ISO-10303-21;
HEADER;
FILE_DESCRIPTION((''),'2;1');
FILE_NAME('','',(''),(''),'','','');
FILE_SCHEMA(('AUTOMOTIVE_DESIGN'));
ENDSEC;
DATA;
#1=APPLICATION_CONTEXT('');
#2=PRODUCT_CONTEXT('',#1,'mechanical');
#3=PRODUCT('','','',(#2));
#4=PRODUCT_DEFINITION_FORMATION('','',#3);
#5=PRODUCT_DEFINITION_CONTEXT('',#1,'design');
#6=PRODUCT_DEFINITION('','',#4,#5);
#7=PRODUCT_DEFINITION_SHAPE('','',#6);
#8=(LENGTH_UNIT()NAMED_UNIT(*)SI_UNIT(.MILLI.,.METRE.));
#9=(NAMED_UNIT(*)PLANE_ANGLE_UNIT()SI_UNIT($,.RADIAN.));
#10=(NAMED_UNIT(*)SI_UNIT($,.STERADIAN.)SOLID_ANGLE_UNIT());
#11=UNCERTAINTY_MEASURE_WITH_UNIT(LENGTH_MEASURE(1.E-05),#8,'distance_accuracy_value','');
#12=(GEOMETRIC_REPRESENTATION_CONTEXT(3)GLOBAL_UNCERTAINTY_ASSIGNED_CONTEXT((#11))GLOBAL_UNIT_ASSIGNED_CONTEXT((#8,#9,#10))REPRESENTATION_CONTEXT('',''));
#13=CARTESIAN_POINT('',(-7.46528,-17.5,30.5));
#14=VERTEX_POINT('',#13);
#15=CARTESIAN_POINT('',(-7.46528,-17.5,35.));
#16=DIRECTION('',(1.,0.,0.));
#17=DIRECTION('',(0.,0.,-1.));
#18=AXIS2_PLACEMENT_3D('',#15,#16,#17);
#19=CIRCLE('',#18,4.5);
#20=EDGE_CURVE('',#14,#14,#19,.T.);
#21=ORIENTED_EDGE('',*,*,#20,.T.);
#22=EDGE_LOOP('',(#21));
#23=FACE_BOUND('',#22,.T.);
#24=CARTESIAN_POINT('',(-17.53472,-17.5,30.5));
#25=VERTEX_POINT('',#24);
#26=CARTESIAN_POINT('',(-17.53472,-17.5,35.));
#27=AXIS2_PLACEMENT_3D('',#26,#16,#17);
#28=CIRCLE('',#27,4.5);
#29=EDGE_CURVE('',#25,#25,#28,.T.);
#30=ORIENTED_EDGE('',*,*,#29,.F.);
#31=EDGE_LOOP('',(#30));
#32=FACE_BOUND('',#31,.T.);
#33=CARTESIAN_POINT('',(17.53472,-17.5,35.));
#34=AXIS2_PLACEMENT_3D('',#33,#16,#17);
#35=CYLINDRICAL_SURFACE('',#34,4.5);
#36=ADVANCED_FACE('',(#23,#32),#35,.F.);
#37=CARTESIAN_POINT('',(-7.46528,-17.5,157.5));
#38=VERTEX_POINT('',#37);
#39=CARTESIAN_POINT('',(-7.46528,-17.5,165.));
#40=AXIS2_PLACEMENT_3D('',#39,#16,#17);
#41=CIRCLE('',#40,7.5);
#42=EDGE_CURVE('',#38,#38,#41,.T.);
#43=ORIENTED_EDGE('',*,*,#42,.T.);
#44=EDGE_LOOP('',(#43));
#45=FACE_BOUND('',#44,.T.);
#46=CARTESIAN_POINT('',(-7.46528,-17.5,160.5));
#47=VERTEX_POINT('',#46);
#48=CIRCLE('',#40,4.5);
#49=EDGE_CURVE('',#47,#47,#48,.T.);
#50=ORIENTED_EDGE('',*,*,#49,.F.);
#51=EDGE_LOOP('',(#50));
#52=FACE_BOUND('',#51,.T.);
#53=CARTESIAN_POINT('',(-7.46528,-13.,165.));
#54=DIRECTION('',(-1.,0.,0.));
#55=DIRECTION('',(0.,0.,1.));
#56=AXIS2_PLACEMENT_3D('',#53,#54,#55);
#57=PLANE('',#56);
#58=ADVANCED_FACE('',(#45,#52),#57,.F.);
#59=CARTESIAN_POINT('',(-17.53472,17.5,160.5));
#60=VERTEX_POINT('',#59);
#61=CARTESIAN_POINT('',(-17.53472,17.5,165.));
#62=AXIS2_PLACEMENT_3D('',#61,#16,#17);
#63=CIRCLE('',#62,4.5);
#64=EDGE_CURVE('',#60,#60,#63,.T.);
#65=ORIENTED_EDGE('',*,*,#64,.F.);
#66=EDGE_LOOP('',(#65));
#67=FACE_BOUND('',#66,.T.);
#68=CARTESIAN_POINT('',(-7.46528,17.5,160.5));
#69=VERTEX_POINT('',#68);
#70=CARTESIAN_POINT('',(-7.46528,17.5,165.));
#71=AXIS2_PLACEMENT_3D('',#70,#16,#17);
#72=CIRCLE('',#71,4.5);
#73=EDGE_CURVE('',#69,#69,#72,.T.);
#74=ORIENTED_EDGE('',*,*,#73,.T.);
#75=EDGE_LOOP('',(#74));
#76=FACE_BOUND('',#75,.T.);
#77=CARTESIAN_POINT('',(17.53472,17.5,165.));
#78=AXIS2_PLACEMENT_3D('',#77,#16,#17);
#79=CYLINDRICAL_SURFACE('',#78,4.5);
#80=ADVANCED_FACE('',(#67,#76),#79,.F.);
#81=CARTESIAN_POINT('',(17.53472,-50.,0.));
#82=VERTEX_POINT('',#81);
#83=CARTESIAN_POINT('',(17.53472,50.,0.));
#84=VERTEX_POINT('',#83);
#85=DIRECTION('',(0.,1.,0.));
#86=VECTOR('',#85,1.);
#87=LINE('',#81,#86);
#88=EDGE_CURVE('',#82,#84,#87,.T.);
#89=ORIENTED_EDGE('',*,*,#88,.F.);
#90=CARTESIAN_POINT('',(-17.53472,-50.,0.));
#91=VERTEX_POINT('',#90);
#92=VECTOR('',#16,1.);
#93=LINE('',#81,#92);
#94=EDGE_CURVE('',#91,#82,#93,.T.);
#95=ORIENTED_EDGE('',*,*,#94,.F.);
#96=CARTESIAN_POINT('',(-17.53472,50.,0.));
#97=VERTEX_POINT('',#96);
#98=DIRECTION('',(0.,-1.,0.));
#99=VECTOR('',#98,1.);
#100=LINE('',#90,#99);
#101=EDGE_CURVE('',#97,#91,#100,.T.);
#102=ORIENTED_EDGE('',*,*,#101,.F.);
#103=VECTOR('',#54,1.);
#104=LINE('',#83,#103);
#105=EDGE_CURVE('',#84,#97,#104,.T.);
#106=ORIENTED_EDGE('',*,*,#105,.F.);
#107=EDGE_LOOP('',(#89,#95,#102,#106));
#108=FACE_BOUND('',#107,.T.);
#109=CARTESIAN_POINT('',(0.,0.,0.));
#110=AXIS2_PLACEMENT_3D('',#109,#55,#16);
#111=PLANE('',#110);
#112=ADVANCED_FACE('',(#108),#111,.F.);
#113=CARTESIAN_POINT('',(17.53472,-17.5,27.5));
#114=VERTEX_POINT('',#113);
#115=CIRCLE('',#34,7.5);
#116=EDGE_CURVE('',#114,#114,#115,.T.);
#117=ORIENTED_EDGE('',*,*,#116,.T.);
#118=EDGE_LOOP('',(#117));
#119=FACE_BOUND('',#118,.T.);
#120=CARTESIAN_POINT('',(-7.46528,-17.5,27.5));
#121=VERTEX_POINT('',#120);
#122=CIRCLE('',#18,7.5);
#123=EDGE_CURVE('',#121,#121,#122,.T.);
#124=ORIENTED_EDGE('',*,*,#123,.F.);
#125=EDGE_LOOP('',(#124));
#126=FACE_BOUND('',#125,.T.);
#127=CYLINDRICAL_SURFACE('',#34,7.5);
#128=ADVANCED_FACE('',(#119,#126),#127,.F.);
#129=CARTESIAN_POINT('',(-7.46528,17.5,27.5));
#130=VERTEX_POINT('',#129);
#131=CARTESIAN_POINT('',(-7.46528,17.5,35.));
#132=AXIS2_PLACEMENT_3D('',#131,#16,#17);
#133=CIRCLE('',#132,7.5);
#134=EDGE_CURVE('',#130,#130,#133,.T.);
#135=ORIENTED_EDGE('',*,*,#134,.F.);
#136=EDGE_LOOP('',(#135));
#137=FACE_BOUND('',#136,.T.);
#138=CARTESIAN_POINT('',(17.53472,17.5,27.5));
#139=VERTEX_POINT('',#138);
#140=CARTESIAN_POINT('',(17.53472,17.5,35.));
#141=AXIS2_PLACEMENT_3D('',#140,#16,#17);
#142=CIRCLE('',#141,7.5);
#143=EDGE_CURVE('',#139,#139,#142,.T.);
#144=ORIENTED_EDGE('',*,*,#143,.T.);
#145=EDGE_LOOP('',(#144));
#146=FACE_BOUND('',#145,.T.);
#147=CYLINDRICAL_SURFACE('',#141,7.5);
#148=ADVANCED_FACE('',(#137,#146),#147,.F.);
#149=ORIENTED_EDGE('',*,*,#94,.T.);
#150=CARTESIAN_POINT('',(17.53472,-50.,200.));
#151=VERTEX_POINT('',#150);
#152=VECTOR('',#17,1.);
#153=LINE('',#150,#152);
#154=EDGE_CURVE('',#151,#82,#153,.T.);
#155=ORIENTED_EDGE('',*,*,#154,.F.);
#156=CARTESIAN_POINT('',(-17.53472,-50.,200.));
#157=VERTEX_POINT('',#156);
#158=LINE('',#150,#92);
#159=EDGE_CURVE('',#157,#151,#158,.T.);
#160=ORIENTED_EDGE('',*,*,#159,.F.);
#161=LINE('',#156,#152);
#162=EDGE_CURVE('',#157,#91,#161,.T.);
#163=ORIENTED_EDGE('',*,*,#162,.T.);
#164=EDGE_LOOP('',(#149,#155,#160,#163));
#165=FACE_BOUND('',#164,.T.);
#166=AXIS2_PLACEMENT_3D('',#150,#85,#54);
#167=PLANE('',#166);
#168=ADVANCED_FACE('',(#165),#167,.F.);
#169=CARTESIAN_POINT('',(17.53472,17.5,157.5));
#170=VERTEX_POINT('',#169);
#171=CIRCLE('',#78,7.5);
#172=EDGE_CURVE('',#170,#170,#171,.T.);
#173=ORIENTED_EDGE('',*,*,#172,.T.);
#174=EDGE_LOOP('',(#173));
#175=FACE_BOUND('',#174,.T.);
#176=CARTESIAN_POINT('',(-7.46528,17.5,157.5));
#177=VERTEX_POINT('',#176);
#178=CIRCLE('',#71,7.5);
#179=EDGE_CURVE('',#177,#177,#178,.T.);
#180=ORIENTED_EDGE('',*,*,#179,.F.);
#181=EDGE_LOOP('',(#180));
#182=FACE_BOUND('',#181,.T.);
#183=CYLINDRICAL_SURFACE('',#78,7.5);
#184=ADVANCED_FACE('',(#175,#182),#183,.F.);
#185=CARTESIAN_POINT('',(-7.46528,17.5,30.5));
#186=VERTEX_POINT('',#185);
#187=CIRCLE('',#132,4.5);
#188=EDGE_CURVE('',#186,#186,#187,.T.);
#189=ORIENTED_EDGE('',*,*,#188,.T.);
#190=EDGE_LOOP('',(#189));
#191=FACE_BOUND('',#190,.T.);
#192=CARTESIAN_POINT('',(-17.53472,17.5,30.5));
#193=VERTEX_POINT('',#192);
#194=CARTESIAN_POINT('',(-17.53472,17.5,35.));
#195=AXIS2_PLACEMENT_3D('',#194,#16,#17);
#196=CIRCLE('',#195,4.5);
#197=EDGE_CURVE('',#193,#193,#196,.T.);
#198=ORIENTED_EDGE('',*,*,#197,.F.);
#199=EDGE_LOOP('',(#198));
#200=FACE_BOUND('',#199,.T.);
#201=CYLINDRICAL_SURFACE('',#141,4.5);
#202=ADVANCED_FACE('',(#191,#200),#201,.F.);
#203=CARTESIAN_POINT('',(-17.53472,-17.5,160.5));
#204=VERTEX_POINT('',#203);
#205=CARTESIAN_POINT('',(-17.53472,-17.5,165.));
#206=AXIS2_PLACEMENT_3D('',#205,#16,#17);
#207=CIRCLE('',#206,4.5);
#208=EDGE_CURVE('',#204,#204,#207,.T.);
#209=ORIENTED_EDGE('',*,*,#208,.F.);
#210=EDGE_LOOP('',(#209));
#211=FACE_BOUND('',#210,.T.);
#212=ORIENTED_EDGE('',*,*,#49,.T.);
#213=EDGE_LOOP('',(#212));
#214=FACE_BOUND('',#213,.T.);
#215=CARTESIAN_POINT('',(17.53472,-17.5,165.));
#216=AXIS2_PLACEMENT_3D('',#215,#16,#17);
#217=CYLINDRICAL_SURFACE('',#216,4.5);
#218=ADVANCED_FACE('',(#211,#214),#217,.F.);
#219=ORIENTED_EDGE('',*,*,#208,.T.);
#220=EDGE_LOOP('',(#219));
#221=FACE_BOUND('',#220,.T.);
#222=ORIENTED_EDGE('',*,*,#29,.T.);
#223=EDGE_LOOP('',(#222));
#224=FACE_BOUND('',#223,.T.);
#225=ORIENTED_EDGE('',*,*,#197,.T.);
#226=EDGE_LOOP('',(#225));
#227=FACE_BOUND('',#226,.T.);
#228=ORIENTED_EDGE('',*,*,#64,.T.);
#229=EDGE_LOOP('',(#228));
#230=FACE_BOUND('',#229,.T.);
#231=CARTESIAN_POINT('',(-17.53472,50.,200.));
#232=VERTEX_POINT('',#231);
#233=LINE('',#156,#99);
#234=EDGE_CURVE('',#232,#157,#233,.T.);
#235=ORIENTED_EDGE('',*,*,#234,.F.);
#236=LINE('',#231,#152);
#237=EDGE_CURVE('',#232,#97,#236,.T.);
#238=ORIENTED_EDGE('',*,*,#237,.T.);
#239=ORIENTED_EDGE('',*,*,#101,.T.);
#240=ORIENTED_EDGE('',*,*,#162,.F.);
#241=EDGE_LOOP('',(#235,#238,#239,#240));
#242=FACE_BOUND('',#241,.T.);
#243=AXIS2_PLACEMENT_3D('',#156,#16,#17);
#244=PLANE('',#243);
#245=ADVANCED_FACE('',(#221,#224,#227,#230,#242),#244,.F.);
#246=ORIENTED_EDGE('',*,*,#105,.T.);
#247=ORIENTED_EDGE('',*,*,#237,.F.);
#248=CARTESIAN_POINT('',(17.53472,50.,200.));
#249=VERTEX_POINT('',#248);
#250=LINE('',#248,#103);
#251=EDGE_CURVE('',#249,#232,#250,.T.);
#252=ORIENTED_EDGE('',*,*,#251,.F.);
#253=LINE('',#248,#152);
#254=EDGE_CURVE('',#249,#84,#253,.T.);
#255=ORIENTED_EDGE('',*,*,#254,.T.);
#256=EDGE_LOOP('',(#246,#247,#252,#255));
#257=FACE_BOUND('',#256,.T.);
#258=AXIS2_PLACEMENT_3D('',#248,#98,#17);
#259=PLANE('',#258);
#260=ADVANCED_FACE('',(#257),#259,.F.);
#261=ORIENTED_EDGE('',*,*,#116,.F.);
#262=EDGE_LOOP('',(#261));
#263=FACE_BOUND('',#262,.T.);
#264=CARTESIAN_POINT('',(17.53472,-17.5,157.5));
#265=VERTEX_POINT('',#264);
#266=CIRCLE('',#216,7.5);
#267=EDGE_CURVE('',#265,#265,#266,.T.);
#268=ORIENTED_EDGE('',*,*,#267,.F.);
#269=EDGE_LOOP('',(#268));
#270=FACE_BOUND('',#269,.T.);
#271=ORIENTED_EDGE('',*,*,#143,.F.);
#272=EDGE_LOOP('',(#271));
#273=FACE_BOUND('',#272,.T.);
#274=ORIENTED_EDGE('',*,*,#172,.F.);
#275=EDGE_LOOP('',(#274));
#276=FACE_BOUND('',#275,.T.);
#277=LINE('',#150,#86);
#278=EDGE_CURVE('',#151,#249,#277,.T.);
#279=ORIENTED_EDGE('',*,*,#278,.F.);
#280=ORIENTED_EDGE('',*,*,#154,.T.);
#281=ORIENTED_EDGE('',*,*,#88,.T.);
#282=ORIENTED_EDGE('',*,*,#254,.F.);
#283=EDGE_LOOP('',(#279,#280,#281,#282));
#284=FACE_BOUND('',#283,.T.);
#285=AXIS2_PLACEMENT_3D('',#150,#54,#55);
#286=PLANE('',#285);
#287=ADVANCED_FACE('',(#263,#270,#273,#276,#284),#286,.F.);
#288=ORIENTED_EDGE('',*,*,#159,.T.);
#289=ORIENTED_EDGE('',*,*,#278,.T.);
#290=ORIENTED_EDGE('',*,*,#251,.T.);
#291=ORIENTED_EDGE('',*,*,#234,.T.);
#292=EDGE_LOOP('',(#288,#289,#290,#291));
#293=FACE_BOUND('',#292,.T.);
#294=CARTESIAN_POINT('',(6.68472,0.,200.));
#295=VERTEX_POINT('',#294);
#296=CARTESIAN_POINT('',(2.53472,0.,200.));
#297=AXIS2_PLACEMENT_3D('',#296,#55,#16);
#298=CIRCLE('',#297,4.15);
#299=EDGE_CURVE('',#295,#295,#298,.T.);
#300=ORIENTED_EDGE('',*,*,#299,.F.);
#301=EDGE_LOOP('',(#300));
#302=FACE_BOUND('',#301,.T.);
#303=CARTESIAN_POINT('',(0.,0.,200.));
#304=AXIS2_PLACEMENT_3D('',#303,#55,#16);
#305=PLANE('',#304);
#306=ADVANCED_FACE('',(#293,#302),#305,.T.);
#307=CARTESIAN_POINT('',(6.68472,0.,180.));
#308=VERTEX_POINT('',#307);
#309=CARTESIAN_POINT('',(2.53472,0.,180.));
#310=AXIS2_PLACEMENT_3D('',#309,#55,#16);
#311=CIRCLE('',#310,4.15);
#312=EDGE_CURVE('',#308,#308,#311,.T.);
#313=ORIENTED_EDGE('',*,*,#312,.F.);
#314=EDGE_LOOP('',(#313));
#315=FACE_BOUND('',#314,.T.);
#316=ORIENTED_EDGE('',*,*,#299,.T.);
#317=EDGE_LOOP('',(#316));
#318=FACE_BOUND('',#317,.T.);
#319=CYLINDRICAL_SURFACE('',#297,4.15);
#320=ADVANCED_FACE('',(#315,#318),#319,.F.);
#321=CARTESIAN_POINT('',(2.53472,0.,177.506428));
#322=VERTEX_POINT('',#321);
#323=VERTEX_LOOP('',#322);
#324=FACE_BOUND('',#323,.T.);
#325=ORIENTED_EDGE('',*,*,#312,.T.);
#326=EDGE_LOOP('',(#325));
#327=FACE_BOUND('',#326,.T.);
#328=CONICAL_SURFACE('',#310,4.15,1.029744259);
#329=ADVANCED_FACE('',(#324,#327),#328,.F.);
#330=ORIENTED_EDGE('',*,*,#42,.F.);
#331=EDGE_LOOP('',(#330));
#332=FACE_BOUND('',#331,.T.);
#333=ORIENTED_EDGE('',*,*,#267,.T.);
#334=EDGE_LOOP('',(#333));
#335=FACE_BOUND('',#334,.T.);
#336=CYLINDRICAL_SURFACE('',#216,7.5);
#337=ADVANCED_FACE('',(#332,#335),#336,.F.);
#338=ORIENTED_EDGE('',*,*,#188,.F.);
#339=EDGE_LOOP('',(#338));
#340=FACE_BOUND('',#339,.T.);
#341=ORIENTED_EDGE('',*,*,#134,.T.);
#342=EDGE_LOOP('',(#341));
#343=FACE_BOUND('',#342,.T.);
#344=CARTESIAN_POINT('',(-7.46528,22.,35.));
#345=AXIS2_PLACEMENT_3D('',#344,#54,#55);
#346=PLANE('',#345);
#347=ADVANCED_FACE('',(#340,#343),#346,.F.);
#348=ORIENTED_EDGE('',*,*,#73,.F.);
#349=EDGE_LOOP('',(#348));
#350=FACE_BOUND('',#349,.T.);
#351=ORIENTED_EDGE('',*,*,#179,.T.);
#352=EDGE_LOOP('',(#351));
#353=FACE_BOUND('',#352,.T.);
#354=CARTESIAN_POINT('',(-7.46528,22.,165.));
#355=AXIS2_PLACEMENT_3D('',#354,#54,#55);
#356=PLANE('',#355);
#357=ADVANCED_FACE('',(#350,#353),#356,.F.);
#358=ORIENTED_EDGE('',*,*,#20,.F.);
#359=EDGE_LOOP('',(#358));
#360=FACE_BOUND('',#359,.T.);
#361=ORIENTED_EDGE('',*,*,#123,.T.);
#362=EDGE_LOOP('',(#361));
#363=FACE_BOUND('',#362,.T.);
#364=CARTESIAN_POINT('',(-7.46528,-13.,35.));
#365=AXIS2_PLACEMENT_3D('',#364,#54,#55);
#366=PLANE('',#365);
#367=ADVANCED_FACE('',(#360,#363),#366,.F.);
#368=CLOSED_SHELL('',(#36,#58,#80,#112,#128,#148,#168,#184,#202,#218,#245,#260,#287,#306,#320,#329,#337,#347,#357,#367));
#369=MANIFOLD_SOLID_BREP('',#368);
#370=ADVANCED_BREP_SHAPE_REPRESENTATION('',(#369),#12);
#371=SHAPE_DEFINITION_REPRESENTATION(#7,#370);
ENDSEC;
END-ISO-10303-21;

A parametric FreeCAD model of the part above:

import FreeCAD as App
import Part
import Sketcher

V = App.Vector


def add_polygon(sketch, points):
    """Adds a closed chain of lines whose ends are joined by coincident constraints."""
    first, n = sketch.GeometryCount, len(points)
    for a, b in zip(points, points[1:] + points[:1]):
        sketch.addGeometry(Part.LineSegment(App.Vector(*a, 0), App.Vector(*b, 0)), False)
    for i in range(n):
        sketch.addConstraint(Sketcher.Constraint("Coincident", first + i, 2, first + (i + 1) % n, 1))

doc = App.newDocument("Part")
params = doc.addObject("Spreadsheet::Sheet", "Params")
for row, (alias, value) in enumerate([
    ("sketch1_height", "100 mm"),
    ("pad1_length", "200 mm"),
    ("sketch2_diameter", "9 mm"),
    ("hole_diameter", "9 mm"),
    ("hole_cbore_diameter", "15 mm"),
    ("hole_cbore_depth", "25 mm"),
    ("sketch3_diameter", "9 mm"),
    ("hole2_diameter", "9 mm"),
    ("hole2_cbore_diameter", "15 mm"),
    ("hole2_cbore_depth", "25 mm"),
    ("sketch4_diameter", "8.3 mm"),
    ("hole3_diameter", "8.3 mm"),
    ("hole3_depth", "20 mm"),
], start=1):
    params.set(f"A{row}", alias)
    params.set(f"B{row}", "=" + value)
    params.setAlias(f"B{row}", alias)

body = doc.addObject("PartDesign::Body", "Body")

# Sketch on XY plane
sketch1 = body.newObject("Sketcher::SketchObject", "Sketch")
sketch1.AttachmentSupport = (doc.getObject("XY_Plane"), [""])
sketch1.MapMode = "FlatFace"
add_polygon(sketch1, [(-18, 50), (-18, -50), (18, -50), (18, 50)])  # lines 0-3
sketch1.addConstraint(Sketcher.Constraint("Vertical", 0))
sketch1.addConstraint(Sketcher.Constraint("Horizontal", 1))
sketch1.addConstraint(Sketcher.Constraint("Vertical", 2))
sketch1.addConstraint(Sketcher.Constraint("Horizontal", 3))
sketch1.addConstraint(Sketcher.Constraint("Symmetric", 0, 2, 2, 2, -1, 1))
sketch1.addConstraint(Sketcher.Constraint("DistanceY", 0, 2, 0, 1, 100.0))
sketch1.addConstraint(Sketcher.Constraint("DistanceX", 1, 1, 1, 2, 35.06944))
sketch1.setExpression("Constraints[9]", "Params.sketch1_height")
pad1 = body.newObject("PartDesign::Pad", "Pad")
pad1.Profile = sketch1
pad1.setExpression("Length", "Params.pad1_length")

# Sketch on YZ plane
sketch2 = body.newObject("Sketcher::SketchObject", "Sketch001")
sketch2.AttachmentSupport = (doc.getObject("YZ_Plane"), [""])
sketch2.MapMode = "FlatFace"
sketch2.AttachmentOffset = App.Placement(V(0, 0, 17.53472), App.Rotation())
sketch2.addGeometry(Part.Circle(V(17.5, 165, 0), V(0, 0, 1), 4.5), False)
sketch2.addConstraint(Sketcher.Constraint("Diameter", 0, 9.0))
sketch2.addConstraint(Sketcher.Constraint("DistanceY", -1, 1, 0, 3, 165.0))
sketch2.addConstraint(Sketcher.Constraint("DistanceX", -1, 1, 0, 3, 17.5))
sketch2.setExpression("Constraints[0]", "Params.sketch2_diameter")
doc.recompute()
hole = body.newObject("PartDesign::Hole", "Hole")
hole.Profile = sketch2
hole.ThreadType = "None"
hole.setExpression("Diameter", "Params.hole_diameter")
hole.DepthType = "ThroughAll"
hole.HoleCutType = "Counterbore"
hole.setExpression("HoleCutDiameter", "Params.hole_cbore_diameter")
hole.setExpression("HoleCutDepth", "Params.hole_cbore_depth")
doc.recompute()

datumplane = body.newObject("PartDesign::Plane", "DatumPlane")
datumplane.AttachmentSupport = (doc.getObject("XY_Plane"), [""])
datumplane.MapMode = "FlatFace"
datumplane.AttachmentOffset = App.Placement(V(0, 0, 100), App.Rotation())
mirrored = body.newObject("PartDesign::Mirrored", "Mirrored")
mirrored.Originals = [hole]
mirrored.MirrorPlane = (datumplane, [""])
body.Tip = mirrored
doc.recompute()

mirrored2 = body.newObject("PartDesign::Mirrored", "Mirrored001")
mirrored2.Originals = [hole]
mirrored2.MirrorPlane = (doc.getObject("XZ_Plane"), [""])
body.Tip = mirrored2

# Sketch on YZ plane
sketch3 = body.newObject("Sketcher::SketchObject", "Sketch002")
sketch3.AttachmentSupport = (doc.getObject("YZ_Plane"), [""])
sketch3.MapMode = "FlatFace"
sketch3.AttachmentOffset = App.Placement(V(0, 0, 17.53472), App.Rotation())
sketch3.addGeometry(Part.Circle(V(-17.5, 35, 0), V(0, 0, 1), 4.5), False)
sketch3.addConstraint(Sketcher.Constraint("Diameter", 0, 9.0))
sketch3.addConstraint(Sketcher.Constraint("DistanceY", -1, 1, 0, 3, 35.0))
sketch3.addConstraint(Sketcher.Constraint("DistanceX", 0, 3, -1, 1, 17.5))
sketch3.setExpression("Constraints[0]", "Params.sketch3_diameter")
doc.recompute()
hole2 = body.newObject("PartDesign::Hole", "Hole001")
hole2.Profile = sketch3
hole2.ThreadType = "None"
hole2.setExpression("Diameter", "Params.hole2_diameter")
hole2.DepthType = "ThroughAll"
hole2.HoleCutType = "Counterbore"
hole2.setExpression("HoleCutDiameter", "Params.hole2_cbore_diameter")
hole2.setExpression("HoleCutDepth", "Params.hole2_cbore_depth")

# Sketch on XY plane
sketch4 = body.newObject("Sketcher::SketchObject", "Sketch003")
sketch4.AttachmentSupport = (doc.getObject("XY_Plane"), [""])
sketch4.MapMode = "FlatFace"
sketch4.AttachmentOffset = App.Placement(V(0, 0, 200), App.Rotation())
sketch4.addGeometry(Part.Circle(V(2.5, 0, 0), V(0, 0, 1), 4.2), False)
sketch4.addConstraint(Sketcher.Constraint("PointOnObject", 0, 3, -1))
sketch4.addConstraint(Sketcher.Constraint("Diameter", 0, 8.3))
sketch4.addConstraint(Sketcher.Constraint("DistanceX", -1, 1, 0, 3, 2.53472))
sketch4.setExpression("Constraints[1]", "Params.sketch4_diameter")
doc.recompute()
hole3 = body.newObject("PartDesign::Hole", "Hole002")
hole3.Profile = sketch4
hole3.ThreadType = "None"
hole3.setExpression("Diameter", "Params.hole3_diameter")
hole3.DepthType = "Dimension"
hole3.setExpression("Depth", "Params.hole3_depth")
hole3.DrillPoint = "Angled"
hole3.DrillPointAngle = 118

doc.recompute()
